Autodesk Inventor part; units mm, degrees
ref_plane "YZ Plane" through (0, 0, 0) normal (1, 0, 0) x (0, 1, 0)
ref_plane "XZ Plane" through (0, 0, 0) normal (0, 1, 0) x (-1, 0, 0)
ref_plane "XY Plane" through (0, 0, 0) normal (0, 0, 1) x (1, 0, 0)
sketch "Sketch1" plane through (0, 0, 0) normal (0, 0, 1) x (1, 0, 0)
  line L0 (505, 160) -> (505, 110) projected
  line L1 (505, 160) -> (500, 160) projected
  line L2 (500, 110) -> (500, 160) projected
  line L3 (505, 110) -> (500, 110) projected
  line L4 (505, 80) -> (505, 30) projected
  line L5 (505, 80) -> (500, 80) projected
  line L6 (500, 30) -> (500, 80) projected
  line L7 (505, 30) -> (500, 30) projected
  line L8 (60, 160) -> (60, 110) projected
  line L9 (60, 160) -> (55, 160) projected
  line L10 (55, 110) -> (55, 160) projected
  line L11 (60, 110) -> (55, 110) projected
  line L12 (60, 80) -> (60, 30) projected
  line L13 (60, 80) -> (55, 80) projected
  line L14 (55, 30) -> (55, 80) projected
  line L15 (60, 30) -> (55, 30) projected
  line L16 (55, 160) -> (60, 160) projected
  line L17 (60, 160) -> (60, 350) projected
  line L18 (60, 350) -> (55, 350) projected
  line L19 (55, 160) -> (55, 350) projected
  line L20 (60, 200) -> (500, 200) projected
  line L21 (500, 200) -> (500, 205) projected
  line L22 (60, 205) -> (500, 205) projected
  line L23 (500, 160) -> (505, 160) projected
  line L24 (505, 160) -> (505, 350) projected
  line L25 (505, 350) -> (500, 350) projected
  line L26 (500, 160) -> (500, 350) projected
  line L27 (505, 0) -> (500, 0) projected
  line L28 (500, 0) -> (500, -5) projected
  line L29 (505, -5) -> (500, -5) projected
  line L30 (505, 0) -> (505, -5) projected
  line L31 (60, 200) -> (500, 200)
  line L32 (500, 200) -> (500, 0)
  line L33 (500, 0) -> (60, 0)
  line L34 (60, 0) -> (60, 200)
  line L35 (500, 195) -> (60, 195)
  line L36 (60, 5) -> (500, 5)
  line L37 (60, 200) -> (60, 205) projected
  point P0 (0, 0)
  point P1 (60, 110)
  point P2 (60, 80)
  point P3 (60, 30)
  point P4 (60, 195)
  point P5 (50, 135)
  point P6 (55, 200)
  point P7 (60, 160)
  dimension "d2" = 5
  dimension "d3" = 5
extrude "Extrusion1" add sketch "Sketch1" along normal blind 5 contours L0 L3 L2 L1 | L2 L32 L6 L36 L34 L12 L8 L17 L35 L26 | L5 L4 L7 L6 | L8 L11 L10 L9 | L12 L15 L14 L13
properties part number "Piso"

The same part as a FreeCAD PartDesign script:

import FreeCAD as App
import Part
import Sketcher

doc = App.newDocument("Part")
body = doc.addObject("PartDesign::Body", "Body")

sketch1 = body.newObject("Sketcher::SketchObject", "Sketch")
sketch1.AttachmentSupport = (doc.getObject("XY_Plane"), [""])
sketch1.MapMode = "FlatFace"
sketch1.addGeometry([
    Part.LineSegment(App.Vector(505, 110, 0), App.Vector(505, 160, 0)),
    Part.LineSegment(App.Vector(505, 160, 0), App.Vector(500, 160, 0)),
    Part.LineSegment(App.Vector(500, 160, 0), App.Vector(500, 195, 0)),
    Part.LineSegment(App.Vector(500, 195, 0), App.Vector(60, 195, 0)),
    Part.LineSegment(App.Vector(60, 195, 0), App.Vector(60, 160, 0)),
    Part.LineSegment(App.Vector(60, 160, 0), App.Vector(55, 160, 0)),
    Part.LineSegment(App.Vector(55, 160, 0), App.Vector(55, 110, 0)),
    Part.LineSegment(App.Vector(55, 110, 0), App.Vector(60, 110, 0)),
    Part.LineSegment(App.Vector(60, 110, 0), App.Vector(60, 80, 0)),
    Part.LineSegment(App.Vector(60, 80, 0), App.Vector(55, 80, 0)),
    Part.LineSegment(App.Vector(55, 80, 0), App.Vector(55, 30, 0)),
    Part.LineSegment(App.Vector(55, 30, 0), App.Vector(60, 30, 0)),
    Part.LineSegment(App.Vector(60, 30, 0), App.Vector(60, 5, 0)),
    Part.LineSegment(App.Vector(60, 5, 0), App.Vector(500, 5, 0)),
    Part.LineSegment(App.Vector(500, 5, 0), App.Vector(500, 30, 0)),
    Part.LineSegment(App.Vector(500, 30, 0), App.Vector(505, 30, 0)),
    Part.LineSegment(App.Vector(505, 30, 0), App.Vector(505, 80, 0)),
    Part.LineSegment(App.Vector(505, 80, 0), App.Vector(500, 80, 0)),
    Part.LineSegment(App.Vector(500, 80, 0), App.Vector(500, 110, 0)),
    Part.LineSegment(App.Vector(500, 110, 0), App.Vector(505, 110, 0)),
], False)
sketch1.addConstraint([
    Sketcher.Constraint("Coincident", 0, 2, 1, 1),
    Sketcher.Constraint("Coincident", 1, 2, 2, 1),
    Sketcher.Constraint("Coincident", 2, 2, 3, 1),
    Sketcher.Constraint("Coincident", 3, 2, 4, 1),
    Sketcher.Constraint("Coincident", 4, 2, 5, 1),
    Sketcher.Constraint("Coincident", 5, 2, 6, 1),
    Sketcher.Constraint("Coincident", 6, 2, 7, 1),
    Sketcher.Constraint("Coincident", 7, 2, 8, 1),
    Sketcher.Constraint("Coincident", 8, 2, 9, 1),
    Sketcher.Constraint("Coincident", 9, 2, 10, 1),
    Sketcher.Constraint("Coincident", 10, 2, 11, 1),
    Sketcher.Constraint("Coincident", 11, 2, 12, 1),
    Sketcher.Constraint("Coincident", 12, 2, 13, 1),
    Sketcher.Constraint("Coincident", 13, 2, 14, 1),
    Sketcher.Constraint("Coincident", 14, 2, 15, 1),
    Sketcher.Constraint("Coincident", 15, 2, 16, 1),
    Sketcher.Constraint("Coincident", 16, 2, 17, 1),
    Sketcher.Constraint("Coincident", 17, 2, 18, 1),
    Sketcher.Constraint("Coincident", 18, 2, 19, 1),
    Sketcher.Constraint("Coincident", 19, 2, 0, 1),
    Sketcher.Constraint("Vertical", 0),
    Sketcher.Constraint("Horizontal", 1),
    Sketcher.Constraint("Vertical", 2),
    Sketcher.Constraint("Horizontal", 3),
    Sketcher.Constraint("Vertical", 4),
    Sketcher.Constraint("Horizontal", 5),
    Sketcher.Constraint("Vertical", 6),
    Sketcher.Constraint("Horizontal", 7),
    Sketcher.Constraint("Vertical", 8),
    Sketcher.Constraint("Horizontal", 9),
    Sketcher.Constraint("Vertical", 10),
    Sketcher.Constraint("Horizontal", 11),
    Sketcher.Constraint("Vertical", 12),
    Sketcher.Constraint("Horizontal", 13),
    Sketcher.Constraint("Vertical", 14),
    Sketcher.Constraint("Horizontal", 15),
    Sketcher.Constraint("Vertical", 16),
    Sketcher.Constraint("Horizontal", 17),
    Sketcher.Constraint("Vertical", 18),
    Sketcher.Constraint("Horizontal", 19),
    Sketcher.Constraint("Horizontal", 1, 2, 4, 2),
    Sketcher.Constraint("Horizontal", 11, 2, 14, 2),
    Sketcher.Constraint("Horizontal", 9, 2, 16, 2),
    Sketcher.Constraint("Horizontal", 7, 2, 18, 2),
    Sketcher.Constraint("Vertical", 4, 2, 7, 2),
    Sketcher.Constraint("Vertical", 6, 2, 9, 2),
    Sketcher.Constraint("Vertical", 8, 2, 11, 2),
    Sketcher.Constraint("Vertical", 2, 2, 13, 2),
    Sketcher.Constraint("Vertical", 0, 2, 15, 2),
    Sketcher.Constraint("Vertical", 14, 2, 17, 2),
    Sketcher.Constraint("Equal", 1, 5),
    Sketcher.Constraint("Equal", 6, 10),
    Sketcher.Constraint("DistanceX", 1, 2, 1, 1, 5.0),
    Sketcher.Constraint("DistanceY", -1, 1, 12, 2, 5.0),
    Sketcher.Constraint("DistanceX", 3, 2, 3, 1, 440.0),
    Sketcher.Constraint("DistanceY", 0, 1, 0, 2, 50.0),
    Sketcher.Constraint("DistanceY", 2, 1, 2, 2, 35.0),
    Sketcher.Constraint("DistanceY", 8, 2, 8, 1, 30.0),
    Sketcher.Constraint("DistanceY", 12, 2, 12, 1, 25.0),
    Sketcher.Constraint("DistanceX", -1, 1, 0, 2, 505.0),
])
pad1 = body.newObject("PartDesign::Pad", "Pad")
pad1.Profile = sketch1
pad1.Length = 5

doc.recompute()
